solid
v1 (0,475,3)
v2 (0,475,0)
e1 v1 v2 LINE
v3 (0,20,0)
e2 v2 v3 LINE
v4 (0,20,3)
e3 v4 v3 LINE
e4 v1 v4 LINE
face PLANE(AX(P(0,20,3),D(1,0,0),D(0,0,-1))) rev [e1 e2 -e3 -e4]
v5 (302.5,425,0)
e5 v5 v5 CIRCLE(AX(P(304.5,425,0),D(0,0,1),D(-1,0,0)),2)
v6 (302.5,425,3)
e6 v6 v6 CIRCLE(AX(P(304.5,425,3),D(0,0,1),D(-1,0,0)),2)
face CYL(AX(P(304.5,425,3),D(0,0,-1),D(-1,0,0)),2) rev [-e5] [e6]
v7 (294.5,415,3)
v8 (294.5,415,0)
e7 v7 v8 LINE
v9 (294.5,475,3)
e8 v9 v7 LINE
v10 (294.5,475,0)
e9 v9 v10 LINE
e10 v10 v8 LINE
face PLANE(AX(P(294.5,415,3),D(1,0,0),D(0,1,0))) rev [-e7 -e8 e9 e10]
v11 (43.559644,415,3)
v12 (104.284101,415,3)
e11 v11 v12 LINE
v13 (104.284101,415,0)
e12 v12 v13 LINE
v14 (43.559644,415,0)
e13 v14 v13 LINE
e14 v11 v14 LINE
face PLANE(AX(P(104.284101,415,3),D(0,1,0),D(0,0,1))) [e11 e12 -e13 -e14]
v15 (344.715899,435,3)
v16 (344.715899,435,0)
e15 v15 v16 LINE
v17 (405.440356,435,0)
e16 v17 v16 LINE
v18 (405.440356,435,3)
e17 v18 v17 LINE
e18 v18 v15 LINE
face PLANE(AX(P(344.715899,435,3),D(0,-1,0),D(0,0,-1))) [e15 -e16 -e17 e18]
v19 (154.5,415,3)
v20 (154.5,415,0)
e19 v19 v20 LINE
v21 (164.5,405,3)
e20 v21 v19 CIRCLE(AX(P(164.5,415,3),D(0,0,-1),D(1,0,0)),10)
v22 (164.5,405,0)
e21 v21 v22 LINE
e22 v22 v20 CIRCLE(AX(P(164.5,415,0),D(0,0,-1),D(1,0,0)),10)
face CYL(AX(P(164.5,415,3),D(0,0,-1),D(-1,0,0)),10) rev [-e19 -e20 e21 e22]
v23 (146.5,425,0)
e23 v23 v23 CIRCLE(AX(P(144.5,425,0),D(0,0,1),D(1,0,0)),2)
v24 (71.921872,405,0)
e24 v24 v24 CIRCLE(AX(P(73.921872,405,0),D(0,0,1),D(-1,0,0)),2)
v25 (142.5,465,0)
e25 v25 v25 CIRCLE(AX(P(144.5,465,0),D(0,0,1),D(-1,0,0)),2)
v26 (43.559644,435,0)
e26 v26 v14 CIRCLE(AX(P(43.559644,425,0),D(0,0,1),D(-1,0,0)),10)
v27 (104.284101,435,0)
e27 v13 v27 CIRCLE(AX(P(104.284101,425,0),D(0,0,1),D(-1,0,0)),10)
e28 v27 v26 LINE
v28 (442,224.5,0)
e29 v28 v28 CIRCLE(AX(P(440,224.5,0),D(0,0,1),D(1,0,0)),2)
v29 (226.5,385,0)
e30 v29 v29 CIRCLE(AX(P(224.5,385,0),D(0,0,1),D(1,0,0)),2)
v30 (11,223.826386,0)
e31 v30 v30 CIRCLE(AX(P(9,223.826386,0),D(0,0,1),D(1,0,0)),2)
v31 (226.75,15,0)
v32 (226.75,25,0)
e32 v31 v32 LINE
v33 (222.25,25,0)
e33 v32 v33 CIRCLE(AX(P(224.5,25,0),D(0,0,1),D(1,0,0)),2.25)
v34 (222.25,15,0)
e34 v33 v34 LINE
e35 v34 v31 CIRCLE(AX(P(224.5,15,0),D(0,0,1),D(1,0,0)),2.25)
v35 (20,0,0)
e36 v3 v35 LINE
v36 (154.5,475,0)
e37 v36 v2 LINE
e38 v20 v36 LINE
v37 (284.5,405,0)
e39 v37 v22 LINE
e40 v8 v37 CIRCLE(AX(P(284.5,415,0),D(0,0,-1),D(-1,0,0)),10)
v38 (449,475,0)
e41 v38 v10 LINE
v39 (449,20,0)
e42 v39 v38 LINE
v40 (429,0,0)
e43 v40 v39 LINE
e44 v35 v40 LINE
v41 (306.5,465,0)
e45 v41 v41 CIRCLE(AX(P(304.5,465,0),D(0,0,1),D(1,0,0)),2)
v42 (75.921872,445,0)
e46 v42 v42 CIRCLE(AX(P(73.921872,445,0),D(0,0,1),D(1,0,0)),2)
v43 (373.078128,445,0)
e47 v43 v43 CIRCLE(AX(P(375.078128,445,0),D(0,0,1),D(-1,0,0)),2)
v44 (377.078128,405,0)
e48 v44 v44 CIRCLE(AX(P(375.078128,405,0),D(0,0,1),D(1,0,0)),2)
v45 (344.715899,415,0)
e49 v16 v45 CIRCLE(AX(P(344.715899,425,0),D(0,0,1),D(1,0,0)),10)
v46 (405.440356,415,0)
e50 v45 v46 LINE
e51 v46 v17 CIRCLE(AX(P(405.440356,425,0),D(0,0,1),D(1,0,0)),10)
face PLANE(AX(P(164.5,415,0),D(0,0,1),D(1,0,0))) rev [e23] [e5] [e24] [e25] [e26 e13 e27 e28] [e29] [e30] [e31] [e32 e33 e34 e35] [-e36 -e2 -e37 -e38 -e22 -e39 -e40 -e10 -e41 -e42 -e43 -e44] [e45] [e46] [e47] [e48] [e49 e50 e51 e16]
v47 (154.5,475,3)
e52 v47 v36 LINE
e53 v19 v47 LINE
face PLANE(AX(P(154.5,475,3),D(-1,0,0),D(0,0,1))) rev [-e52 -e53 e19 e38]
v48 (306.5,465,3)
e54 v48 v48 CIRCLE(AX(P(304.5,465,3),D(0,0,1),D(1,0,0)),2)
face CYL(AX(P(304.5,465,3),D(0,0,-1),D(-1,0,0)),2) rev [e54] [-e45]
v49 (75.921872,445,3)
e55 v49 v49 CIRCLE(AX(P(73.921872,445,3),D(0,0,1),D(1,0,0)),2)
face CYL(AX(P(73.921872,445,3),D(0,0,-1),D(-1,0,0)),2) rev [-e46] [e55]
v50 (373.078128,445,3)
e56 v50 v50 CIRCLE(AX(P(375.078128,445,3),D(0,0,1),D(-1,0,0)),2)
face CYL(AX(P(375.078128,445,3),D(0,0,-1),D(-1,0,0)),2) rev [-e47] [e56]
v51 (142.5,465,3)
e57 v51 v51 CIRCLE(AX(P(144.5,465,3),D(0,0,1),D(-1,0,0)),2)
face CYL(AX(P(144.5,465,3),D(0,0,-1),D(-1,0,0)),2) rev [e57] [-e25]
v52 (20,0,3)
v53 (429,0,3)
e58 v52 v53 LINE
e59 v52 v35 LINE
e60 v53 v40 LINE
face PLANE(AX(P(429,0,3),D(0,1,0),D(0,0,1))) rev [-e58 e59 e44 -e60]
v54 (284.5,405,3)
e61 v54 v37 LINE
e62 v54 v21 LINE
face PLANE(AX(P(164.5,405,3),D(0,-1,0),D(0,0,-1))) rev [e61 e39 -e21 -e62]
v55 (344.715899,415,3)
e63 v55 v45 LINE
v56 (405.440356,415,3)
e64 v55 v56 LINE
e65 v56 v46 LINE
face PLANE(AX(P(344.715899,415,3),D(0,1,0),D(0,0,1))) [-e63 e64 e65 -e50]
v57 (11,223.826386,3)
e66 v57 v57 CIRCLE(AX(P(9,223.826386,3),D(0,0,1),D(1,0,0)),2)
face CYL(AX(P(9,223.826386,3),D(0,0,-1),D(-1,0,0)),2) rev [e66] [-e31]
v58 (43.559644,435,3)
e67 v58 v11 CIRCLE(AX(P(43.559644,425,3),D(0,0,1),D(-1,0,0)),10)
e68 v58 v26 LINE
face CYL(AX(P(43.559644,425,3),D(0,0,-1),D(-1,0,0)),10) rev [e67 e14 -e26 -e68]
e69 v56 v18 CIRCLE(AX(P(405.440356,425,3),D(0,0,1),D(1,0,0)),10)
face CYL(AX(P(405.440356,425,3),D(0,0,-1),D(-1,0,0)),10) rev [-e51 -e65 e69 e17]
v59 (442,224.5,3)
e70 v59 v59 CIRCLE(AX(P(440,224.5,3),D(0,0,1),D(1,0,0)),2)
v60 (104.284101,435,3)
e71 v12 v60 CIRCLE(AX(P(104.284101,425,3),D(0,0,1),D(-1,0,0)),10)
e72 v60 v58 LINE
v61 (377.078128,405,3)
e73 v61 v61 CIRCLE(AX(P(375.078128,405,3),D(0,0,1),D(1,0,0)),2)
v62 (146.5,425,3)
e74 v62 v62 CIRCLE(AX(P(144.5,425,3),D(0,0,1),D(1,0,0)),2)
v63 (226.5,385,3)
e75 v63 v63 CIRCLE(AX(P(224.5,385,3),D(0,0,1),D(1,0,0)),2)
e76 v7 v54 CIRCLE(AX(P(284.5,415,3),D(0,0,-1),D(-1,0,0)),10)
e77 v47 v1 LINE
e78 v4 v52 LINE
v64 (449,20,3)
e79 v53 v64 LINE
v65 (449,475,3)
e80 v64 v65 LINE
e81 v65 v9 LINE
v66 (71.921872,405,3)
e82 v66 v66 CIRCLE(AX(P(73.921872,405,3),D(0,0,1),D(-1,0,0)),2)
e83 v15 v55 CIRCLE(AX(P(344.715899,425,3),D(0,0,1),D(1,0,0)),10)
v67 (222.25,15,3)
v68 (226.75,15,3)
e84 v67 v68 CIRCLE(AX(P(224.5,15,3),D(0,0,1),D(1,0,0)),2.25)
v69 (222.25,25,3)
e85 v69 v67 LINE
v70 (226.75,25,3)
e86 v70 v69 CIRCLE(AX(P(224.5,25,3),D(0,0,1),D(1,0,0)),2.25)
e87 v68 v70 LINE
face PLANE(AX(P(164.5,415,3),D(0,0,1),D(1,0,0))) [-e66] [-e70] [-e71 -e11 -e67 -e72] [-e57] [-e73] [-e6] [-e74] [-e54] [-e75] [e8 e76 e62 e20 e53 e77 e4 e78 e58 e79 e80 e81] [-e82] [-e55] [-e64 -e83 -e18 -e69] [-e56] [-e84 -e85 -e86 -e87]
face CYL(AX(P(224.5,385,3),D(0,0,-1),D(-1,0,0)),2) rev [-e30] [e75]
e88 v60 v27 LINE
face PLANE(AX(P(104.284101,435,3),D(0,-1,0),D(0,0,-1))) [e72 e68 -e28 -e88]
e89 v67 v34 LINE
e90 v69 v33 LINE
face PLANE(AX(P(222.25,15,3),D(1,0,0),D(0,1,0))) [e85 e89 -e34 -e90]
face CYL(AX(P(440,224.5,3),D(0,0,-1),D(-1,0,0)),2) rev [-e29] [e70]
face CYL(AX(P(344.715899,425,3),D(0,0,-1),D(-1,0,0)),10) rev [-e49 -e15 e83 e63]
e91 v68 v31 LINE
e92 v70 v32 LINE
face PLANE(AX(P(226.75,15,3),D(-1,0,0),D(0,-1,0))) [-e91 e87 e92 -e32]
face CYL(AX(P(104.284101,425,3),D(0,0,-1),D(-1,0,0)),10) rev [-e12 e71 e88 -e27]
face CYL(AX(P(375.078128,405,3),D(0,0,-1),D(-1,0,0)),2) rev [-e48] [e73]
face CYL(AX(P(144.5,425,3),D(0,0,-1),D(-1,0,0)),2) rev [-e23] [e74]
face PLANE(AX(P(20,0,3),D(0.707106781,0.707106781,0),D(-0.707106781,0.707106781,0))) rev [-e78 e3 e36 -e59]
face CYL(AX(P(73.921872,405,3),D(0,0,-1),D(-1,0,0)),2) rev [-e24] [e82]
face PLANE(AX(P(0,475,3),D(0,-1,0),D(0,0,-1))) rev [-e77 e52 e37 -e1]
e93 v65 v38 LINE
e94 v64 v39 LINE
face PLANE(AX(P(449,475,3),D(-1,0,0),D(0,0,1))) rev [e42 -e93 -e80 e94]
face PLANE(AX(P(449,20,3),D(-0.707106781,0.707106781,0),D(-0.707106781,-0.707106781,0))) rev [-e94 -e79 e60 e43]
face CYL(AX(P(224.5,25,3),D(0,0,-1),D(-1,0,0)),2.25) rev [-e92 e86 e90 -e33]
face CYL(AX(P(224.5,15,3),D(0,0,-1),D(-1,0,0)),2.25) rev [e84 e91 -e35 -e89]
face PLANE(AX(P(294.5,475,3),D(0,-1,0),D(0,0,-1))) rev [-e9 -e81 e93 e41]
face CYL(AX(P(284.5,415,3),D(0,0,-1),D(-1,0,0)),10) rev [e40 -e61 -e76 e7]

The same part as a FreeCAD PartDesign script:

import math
import FreeCAD as App
import Part
import Sketcher
from FreeCAD import Vector

doc = App.newDocument("Part")
body = doc.addObject("PartDesign::Body", "Body")

# Sketch on XY plane
sketch1 = doc.addObject("Sketcher::SketchObject", "Sketch")
body.addObject(sketch1)
sketch1.AttachmentSupport = (doc.XY_Plane, [""])
sketch1.MapMode = "FlatFace"
sketch1.addGeometry([
    Part.LineSegment(Vector(0, 475, 0), Vector(0, 20, 0)),  # 0
    Part.LineSegment(Vector(0, 20, 0), Vector(20, 0, 0)),  # 1
    Part.LineSegment(Vector(20, 0, 0), Vector(429, 0, 0)),  # 2
    Part.LineSegment(Vector(429, 0, 0), Vector(449, 20, 0)),  # 3
    Part.LineSegment(Vector(449, 20, 0), Vector(449, 475, 0)),  # 4
    Part.LineSegment(Vector(449, 475, 0), Vector(294.5, 475, 0)),  # 5
    Part.LineSegment(Vector(294.5, 475, 0), Vector(294.5, 415, 0)),  # 6
    Part.ArcOfCircle(Part.Circle(Vector(284.5, 415, 0), Vector(0, 0, 1), 10), math.radians(-90), math.radians(0)),  # 7
    Part.LineSegment(Vector(284.5, 405, 0), Vector(164.5, 405, 0)),  # 8
    Part.ArcOfCircle(Part.Circle(Vector(164.5, 415, 0), Vector(0, 0, 1), 10), math.radians(180), math.radians(270)),  # 9
    Part.LineSegment(Vector(154.5, 415, 0), Vector(154.5, 475, 0)),  # 10
    Part.LineSegment(Vector(154.5, 475, 0), Vector(0, 475, 0)),  # 11
    Part.Circle(Vector(440, 224.5, 0), Vector(0, 0, 1), 2),  # 12
    Part.LineSegment(Vector(222.25, 15, 0), Vector(222.25, 25, 0)),  # 13
    Part.ArcOfCircle(Part.Circle(Vector(224.5, 25, 0), Vector(0, 0, 1), 2.25), math.radians(0), math.radians(180)),  # 14
    Part.LineSegment(Vector(226.75, 25, 0), Vector(226.75, 15, 0)),  # 15
    Part.ArcOfCircle(Part.Circle(Vector(224.5, 15, 0), Vector(0, 0, 1), 2.25), math.radians(180), math.radians(360)),  # 16
    Part.Circle(Vector(9, 223.826386, 0), Vector(0, 0, 1), 2),  # 17
    Part.Circle(Vector(375.078128, 405, 0), Vector(0, 0, 1), 2),  # 18
    Part.LineSegment(Vector(344.715899, 435, 0), Vector(405.440356, 435, 0)),  # 19
    Part.ArcOfCircle(Part.Circle(Vector(405.440356, 425, 0), Vector(0, 0, 1), 10), math.radians(-90), math.radians(90)),  # 20
    Part.LineSegment(Vector(405.440356, 415, 0), Vector(344.715899, 415, 0)),  # 21
    Part.ArcOfCircle(Part.Circle(Vector(344.715899, 425, 0), Vector(0, 0, 1), 10), math.radians(90), math.radians(270)),  # 22
    Part.Circle(Vector(375.078128, 445, 0), Vector(0, 0, 1), 2),  # 23
    Part.Circle(Vector(304.5, 425, 0), Vector(0, 0, 1), 2),  # 24
    Part.Circle(Vector(304.5, 465, 0), Vector(0, 0, 1), 2),  # 25
    Part.Circle(Vector(224.5, 385, 0), Vector(0, 0, 1), 2),  # 26
    Part.Circle(Vector(144.5, 425, 0), Vector(0, 0, 1), 2),  # 27
    Part.Circle(Vector(144.5, 465, 0), Vector(0, 0, 1), 2),  # 28
    Part.Circle(Vector(73.921872, 405, 0), Vector(0, 0, 1), 2),  # 29
    Part.ArcOfCircle(Part.Circle(Vector(104.284101, 425, 0), Vector(0, 0, 1), 10), math.radians(-90), math.radians(90)),  # 30
    Part.LineSegment(Vector(104.284101, 415, 0), Vector(43.559644, 415, 0)),  # 31
    Part.ArcOfCircle(Part.Circle(Vector(43.559644, 425, 0), Vector(0, 0, 1), 10), math.radians(90), math.radians(270)),  # 32
    Part.LineSegment(Vector(43.559644, 435, 0), Vector(104.284101, 435, 0)),  # 33
    Part.Circle(Vector(73.921872, 445, 0), Vector(0, 0, 1), 2),  # 34
], False)
sketch1.addConstraint([
    Sketcher.Constraint("Coincident", 0, 2, 1, 1),
    Sketcher.Constraint("Coincident", 1, 2, 2, 1),
    Sketcher.Constraint("Coincident", 2, 2, 3, 1),
    Sketcher.Constraint("Coincident", 3, 2, 4, 1),
    Sketcher.Constraint("Coincident", 4, 2, 5, 1),
    Sketcher.Constraint("Coincident", 5, 2, 6, 1),
    Sketcher.Constraint("Tangent", 6, 2, 7, 2),
    Sketcher.Constraint("Tangent", 7, 1, 8, 1),
    Sketcher.Constraint("Tangent", 8, 2, 9, 2),
    Sketcher.Constraint("Tangent", 9, 1, 10, 1),
    Sketcher.Constraint("Coincident", 10, 2, 11, 1),
    Sketcher.Constraint("Coincident", 11, 2, 0, 1),
    Sketcher.Constraint("Tangent", 13, 2, 14, 2),
    Sketcher.Constraint("Tangent", 14, 1, 15, 1),
    Sketcher.Constraint("Tangent", 15, 2, 16, 2),
    Sketcher.Constraint("Tangent", 16, 1, 13, 1),
    Sketcher.Constraint("Tangent", 19, 2, 20, 2),
    Sketcher.Constraint("Tangent", 20, 1, 21, 1),
    Sketcher.Constraint("Tangent", 21, 2, 22, 2),
    Sketcher.Constraint("Tangent", 22, 1, 19, 1),
    Sketcher.Constraint("Tangent", 30, 1, 31, 1),
    Sketcher.Constraint("Tangent", 31, 2, 32, 2),
    Sketcher.Constraint("Tangent", 32, 1, 33, 1),
    Sketcher.Constraint("Tangent", 33, 2, 30, 2),
    Sketcher.Constraint("Vertical", 0),
    Sketcher.Constraint("Horizontal", 2),
    Sketcher.Constraint("Vertical", 4),
    Sketcher.Constraint("Horizontal", 5),
    Sketcher.Constraint("Vertical", 6),
    Sketcher.Constraint("Horizontal", 8),
    Sketcher.Constraint("Vertical", 10),
    Sketcher.Constraint("Horizontal", 11),
    Sketcher.Constraint("Vertical", 13),
    Sketcher.Constraint("Vertical", 15),
    Sketcher.Constraint("Horizontal", 19),
    Sketcher.Constraint("Horizontal", 21),
    Sketcher.Constraint("Horizontal", 31),
    Sketcher.Constraint("Horizontal", 33),
    Sketcher.Constraint("Equal", 7, 9),
    Sketcher.Constraint("Equal", 12, 17),
    Sketcher.Constraint("Equal", 17, 18),
    Sketcher.Constraint("Equal", 9, 20),
    Sketcher.Constraint("Equal", 18, 23),
    Sketcher.Constraint("Equal", 23, 24),
    Sketcher.Constraint("Equal", 24, 25),
    Sketcher.Constraint("Equal", 25, 26),
    Sketcher.Constraint("Equal", 26, 27),
    Sketcher.Constraint("Equal", 27, 28),
    Sketcher.Constraint("Equal", 28, 29),
    Sketcher.Constraint("Equal", 22, 30),
    Sketcher.Constraint("Equal", 29, 34),
    Sketcher.Constraint("PointOnObject", 0, 2, -2),
    Sketcher.Constraint("PointOnObject", 1, 2, -1),
    Sketcher.Constraint("Perpendicular", 1, 3),
    Sketcher.Constraint("Horizontal", 22, 3, 24, 3),
    Sketcher.Constraint("Horizontal", 24, 3, 27, 3),
    Sketcher.Constraint("Horizontal", 25, 3, 28, 3),
    Sketcher.Constraint("Horizontal", 18, 3, 29, 3),
    Sketcher.Constraint("Horizontal", 27, 3, 30, 3),
    Sketcher.Constraint("Horizontal", 23, 3, 34, 3),
    Sketcher.Constraint("Horizontal", 0, 2, 3, 2),
    Sketcher.Constraint("Horizontal", 29, 3, 7, 1),
    Sketcher.Constraint("Horizontal", 5, 2, 10, 2),
    Sketcher.Constraint("Horizontal", 9, 1, 20, 1),
    Sketcher.Constraint("Vertical", 18, 3, 23, 3),
    Sketcher.Constraint("Vertical", 24, 3, 25, 3),
    Sketcher.Constraint("Vertical", 16, 3, 26, 3),
    Sketcher.Constraint("Vertical", 27, 3, 28, 3),
    Sketcher.Constraint("Vertical", 29, 3, 34, 3),
    Sketcher.Constraint("Equal", 5, 11),
    Sketcher.Constraint("Equal", 21, 31),
    Sketcher.Constraint("Equal", 1, 3),
    Sketcher.Constraint("Diameter", 12, 4.0),
    Sketcher.Constraint("Radius", 7, 10.0),
    Sketcher.Constraint("DistanceX", 2, 1, 2, 2, 409.0),
    Sketcher.Constraint("DistanceX", 8, 2, 8, 1, 120.0),
    Sketcher.Constraint("DistanceY", 0, 2, 0, 1, 455.0),
    Sketcher.Constraint("DistanceY", 6, 2, 6, 1, 60.0),
    Sketcher.Constraint("DistanceY", 13, 1, 13, 2, 10.0),
    Sketcher.Constraint("Radius", 14, 2.25),
    Sketcher.Constraint("DistanceX", 5, 2, 5, 1, 154.5),
    Sketcher.Constraint("DistanceX", -1, 1, 12, 3, 440.0),
    Sketcher.Constraint("DistanceY", -1, 1, 14, 3, 25.0),
    Sketcher.Constraint("DistanceX", -1, 1, 17, 3, 9.0),
    Sketcher.Constraint("DistanceY", -1, 1, 23, 3, 445.0),
    Sketcher.Constraint("DistanceY", -1, 1, 25, 3, 465.0),
    Sketcher.Constraint("DistanceY", -1, 1, 26, 3, 385.0),
    Sketcher.Constraint("DistanceX", 14, 3, 7, 3, 60.0),
    Sketcher.Constraint("DistanceX", 7, 3, 24, 3, 20.0),
    Sketcher.Constraint("DistanceX", 27, 3, 9, 3, 20.0),
    Sketcher.Constraint("DistanceY", -1, 1, 12, 3, 224.5),
    Sketcher.Constraint("DistanceX", -1, 1, 22, 3, 344.715899),
    Sketcher.Constraint("DistanceX", -1, 1, 30, 3, 104.284101),
    Sketcher.Constraint("DistanceX", 19, 1, 19, 2, 60.724456),
    Sketcher.Constraint("DistanceX", 18, 3, 20, 3, 30.362228),
    Sketcher.Constraint("DistanceX", 29, 3, 30, 3, 30.362228),
    Sketcher.Constraint("DistanceY", -1, 1, 17, 3, 223.826386),
])
pad1 = doc.addObject("PartDesign::Pad", "Pad")
body.addObject(pad1)
pad1.Profile = sketch1
pad1.Length = 3

doc.recompute()
